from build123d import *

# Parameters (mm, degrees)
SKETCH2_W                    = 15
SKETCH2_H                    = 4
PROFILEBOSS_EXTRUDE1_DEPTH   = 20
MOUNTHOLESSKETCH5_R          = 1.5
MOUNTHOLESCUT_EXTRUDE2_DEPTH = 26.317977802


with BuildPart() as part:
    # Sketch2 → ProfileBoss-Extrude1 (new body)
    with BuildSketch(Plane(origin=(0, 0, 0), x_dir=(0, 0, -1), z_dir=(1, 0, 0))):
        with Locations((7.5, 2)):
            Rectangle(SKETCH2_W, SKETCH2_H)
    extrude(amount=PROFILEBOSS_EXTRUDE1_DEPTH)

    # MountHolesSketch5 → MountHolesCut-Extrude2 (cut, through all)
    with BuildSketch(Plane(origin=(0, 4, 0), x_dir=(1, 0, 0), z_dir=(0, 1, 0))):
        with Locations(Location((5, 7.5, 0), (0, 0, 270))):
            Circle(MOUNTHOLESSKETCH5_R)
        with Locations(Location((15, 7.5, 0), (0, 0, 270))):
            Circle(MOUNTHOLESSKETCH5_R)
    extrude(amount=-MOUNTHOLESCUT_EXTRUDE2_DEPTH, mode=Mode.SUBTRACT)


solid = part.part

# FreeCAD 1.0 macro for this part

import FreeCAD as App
import Part
import Sketcher
from FreeCAD import Vector


def add_polygon(sketch, points):
    """Adds a closed chain of lines whose ends are joined by coincident constraints."""
    first, n = sketch.GeometryCount, len(points)
    for a, b in zip(points, points[1:] + points[:1]):
        sketch.addGeometry(Part.LineSegment(App.Vector(*a, 0), App.Vector(*b, 0)), False)
    for i in range(n):
        sketch.addConstraint(Sketcher.Constraint("Coincident", first + i, 2, first + (i + 1) % n, 1))

doc = App.newDocument("Part")
body = doc.addObject("PartDesign::Body", "Body")

# Sketch on YZ plane
sketch1 = body.newObject("Sketcher::SketchObject", "Sketch")
sketch1.AttachmentSupport = (doc.getObject("YZ_Plane"), [""])
sketch1.MapMode = "FlatFace"
add_polygon(sketch1, [(4, 0), (0, 0), (0, -15), (4, -15)])  # lines 0-3
sketch1.addConstraint([
    Sketcher.Constraint("Horizontal", 0),
    Sketcher.Constraint("Vertical", 1),
    Sketcher.Constraint("Horizontal", 2),
    Sketcher.Constraint("Vertical", 3),
    Sketcher.Constraint("Coincident", 0, 2, -1, 1),
    Sketcher.Constraint("DistanceX", 0, 2, 0, 1, 4.0),
    Sketcher.Constraint("DistanceY", 1, 2, 1, 1, 15.0),
])
pad1 = body.newObject("PartDesign::Pad", "Pad")
pad1.Profile = sketch1
pad1.Length = 20

# Sketch on XZ plane
sketch2 = body.newObject("Sketcher::SketchObject", "Sketch001")
sketch2.AttachmentSupport = (doc.getObject("XZ_Plane"), [""])
sketch2.MapMode = "FlatFace"
sketch2.AttachmentOffset = App.Placement(Vector(0, 0, -4), App.Rotation())
sketch2.addGeometry([
    Part.Circle(Vector(5, -7.5, 0), Vector(0, 0, 1), 1.5),
    Part.Circle(Vector(15, -7.5, 0), Vector(0, 0, 1), 1.5),
], False)
sketch2.addConstraint([
    Sketcher.Constraint("Equal", 0, 1),
    Sketcher.Constraint("Horizontal", 0, 3, 1, 3),
    Sketcher.Constraint("Diameter", 0, 3.0),
    Sketcher.Constraint("DistanceX", -1, 1, 0, 3, 5.0),
    Sketcher.Constraint("DistanceX", -1, 1, 1, 3, 15.0),
    Sketcher.Constraint("DistanceY", 0, 3, -1, 1, 7.5),
])
pocket1 = body.newObject("PartDesign::Pocket", "Pocket")
pocket1.Profile = sketch2
pocket1.Type = "ThroughAll"
pocket1.Reversed = True

doc.recompute()
